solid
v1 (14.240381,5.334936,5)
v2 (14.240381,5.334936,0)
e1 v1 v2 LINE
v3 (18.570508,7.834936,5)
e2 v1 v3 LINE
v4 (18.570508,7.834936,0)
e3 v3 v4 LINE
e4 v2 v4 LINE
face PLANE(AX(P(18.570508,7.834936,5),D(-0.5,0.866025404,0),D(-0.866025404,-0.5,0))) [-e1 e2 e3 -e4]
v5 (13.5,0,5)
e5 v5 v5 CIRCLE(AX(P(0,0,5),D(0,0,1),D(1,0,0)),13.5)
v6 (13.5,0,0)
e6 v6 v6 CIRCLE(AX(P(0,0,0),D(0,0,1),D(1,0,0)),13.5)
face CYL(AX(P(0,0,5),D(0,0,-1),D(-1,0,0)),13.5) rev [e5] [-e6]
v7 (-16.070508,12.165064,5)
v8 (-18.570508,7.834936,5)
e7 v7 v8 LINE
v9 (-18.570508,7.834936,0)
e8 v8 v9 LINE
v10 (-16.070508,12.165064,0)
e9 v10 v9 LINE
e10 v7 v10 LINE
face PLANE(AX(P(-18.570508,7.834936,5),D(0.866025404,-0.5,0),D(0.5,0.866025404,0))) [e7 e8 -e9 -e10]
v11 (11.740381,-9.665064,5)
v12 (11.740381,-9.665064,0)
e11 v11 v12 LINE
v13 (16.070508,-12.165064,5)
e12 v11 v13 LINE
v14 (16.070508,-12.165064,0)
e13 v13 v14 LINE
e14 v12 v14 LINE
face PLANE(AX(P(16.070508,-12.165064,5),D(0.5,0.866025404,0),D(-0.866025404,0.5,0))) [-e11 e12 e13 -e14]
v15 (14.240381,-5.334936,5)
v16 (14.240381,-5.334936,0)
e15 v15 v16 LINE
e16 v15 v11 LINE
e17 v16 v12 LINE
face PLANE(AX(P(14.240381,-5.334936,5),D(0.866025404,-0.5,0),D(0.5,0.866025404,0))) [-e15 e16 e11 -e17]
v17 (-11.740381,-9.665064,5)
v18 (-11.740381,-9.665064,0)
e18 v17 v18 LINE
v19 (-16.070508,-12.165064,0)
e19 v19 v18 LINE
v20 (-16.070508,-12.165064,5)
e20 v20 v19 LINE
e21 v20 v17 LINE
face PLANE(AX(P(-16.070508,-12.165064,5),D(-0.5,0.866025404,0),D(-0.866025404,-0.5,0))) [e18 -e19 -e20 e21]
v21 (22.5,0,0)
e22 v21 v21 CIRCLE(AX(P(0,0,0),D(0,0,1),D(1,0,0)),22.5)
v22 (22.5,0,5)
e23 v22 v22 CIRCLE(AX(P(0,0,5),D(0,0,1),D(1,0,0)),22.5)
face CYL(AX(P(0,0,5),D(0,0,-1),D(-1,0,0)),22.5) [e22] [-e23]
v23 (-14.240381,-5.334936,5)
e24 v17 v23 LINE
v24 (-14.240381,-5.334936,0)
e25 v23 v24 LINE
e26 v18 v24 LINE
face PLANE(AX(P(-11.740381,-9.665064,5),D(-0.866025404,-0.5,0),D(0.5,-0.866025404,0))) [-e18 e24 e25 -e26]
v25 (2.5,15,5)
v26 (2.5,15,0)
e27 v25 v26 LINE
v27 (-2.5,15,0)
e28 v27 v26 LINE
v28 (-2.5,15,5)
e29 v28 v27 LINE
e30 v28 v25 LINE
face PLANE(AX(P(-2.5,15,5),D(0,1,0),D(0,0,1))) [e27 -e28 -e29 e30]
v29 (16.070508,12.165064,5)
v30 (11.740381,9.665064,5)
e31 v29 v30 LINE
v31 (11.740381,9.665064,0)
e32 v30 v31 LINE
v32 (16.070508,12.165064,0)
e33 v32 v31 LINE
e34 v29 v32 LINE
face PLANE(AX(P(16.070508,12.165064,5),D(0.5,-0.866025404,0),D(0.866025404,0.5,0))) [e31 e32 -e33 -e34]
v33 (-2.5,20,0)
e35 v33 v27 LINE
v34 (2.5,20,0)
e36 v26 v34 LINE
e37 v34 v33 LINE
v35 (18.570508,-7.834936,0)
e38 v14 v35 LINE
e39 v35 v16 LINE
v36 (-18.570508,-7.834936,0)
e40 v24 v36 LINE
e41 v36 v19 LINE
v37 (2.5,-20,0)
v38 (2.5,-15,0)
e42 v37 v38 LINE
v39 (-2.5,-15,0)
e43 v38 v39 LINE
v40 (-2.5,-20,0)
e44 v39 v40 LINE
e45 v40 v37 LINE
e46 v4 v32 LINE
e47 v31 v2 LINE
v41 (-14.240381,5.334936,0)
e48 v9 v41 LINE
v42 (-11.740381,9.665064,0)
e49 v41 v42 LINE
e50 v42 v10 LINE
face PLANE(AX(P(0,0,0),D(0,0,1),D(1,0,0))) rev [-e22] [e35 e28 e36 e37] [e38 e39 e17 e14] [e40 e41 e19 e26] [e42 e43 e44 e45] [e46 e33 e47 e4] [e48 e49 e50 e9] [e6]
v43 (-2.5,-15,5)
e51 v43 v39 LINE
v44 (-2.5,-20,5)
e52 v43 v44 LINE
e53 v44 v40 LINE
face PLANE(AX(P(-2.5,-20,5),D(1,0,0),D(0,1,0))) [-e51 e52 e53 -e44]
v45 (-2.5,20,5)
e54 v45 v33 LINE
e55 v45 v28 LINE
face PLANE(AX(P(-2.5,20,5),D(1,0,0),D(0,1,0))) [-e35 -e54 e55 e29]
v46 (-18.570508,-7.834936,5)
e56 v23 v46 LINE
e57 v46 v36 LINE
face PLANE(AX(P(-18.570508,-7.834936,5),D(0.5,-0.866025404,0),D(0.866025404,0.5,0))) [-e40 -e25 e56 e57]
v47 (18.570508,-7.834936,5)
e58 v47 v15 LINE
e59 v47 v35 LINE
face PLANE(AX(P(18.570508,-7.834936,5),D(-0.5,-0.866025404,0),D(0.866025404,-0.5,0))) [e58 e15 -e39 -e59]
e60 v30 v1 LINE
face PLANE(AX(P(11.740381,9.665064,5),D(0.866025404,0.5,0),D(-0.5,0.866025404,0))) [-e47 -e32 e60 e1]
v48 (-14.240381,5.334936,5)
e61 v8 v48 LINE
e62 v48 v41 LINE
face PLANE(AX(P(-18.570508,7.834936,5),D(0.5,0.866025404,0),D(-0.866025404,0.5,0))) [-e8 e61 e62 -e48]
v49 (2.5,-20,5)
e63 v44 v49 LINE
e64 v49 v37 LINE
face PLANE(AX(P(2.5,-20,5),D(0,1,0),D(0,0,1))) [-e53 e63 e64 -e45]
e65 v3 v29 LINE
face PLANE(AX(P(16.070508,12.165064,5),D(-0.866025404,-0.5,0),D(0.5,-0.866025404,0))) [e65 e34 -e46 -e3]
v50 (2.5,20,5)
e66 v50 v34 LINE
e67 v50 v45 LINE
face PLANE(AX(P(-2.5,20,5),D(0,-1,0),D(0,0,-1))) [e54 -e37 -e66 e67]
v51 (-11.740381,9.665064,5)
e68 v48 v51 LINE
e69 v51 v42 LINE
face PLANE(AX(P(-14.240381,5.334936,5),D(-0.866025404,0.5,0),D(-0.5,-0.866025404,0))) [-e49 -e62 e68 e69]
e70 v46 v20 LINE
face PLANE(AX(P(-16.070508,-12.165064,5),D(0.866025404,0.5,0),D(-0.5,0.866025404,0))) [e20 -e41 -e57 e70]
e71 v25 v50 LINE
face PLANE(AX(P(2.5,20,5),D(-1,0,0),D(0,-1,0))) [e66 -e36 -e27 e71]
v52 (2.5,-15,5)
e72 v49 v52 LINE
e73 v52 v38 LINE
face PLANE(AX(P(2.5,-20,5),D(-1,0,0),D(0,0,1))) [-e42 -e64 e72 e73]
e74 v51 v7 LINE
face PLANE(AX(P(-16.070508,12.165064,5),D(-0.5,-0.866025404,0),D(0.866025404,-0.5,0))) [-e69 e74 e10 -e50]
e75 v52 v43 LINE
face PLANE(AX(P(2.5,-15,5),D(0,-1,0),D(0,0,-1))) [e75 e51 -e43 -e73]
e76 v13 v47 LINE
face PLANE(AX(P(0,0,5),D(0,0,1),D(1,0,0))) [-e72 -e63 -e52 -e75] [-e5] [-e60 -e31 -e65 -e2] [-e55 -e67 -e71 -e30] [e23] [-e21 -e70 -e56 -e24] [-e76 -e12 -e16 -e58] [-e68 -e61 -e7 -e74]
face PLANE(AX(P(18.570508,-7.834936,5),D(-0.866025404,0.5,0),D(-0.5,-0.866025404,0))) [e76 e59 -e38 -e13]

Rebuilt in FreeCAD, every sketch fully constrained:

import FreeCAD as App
import Part
import Sketcher
from FreeCAD import Vector
Q = App.Units.Quantity


def add_polygon(sketch, points):
    """Adds a closed chain of lines whose ends are joined by coincident constraints."""
    first, n = sketch.GeometryCount, len(points)
    for a, b in zip(points, points[1:] + points[:1]):
        sketch.addGeometry(Part.LineSegment(App.Vector(*a, 0), App.Vector(*b, 0)), False)
    for i in range(n):
        sketch.addConstraint(Sketcher.Constraint("Coincident", first + i, 2, first + (i + 1) % n, 1))

doc = App.newDocument("Part")
body = doc.addObject("PartDesign::Body", "Body")

sketch1 = doc.addObject("Sketcher::SketchObject", "Sketch")
body.addObject(sketch1)
sketch1.AttachmentSupport = (doc.XY_Plane, [""])
sketch1.MapMode = "FlatFace"
sketch1.addGeometry(Part.Circle(Vector(0, 0, 0), Vector(0, 0, 1), 22.5), False)
add_polygon(sketch1, [(2.5, -20), (-2.5, -20), (-2.5, -15), (2.5, -15)])
add_polygon(sketch1, [(-16.1, -12.2), (-18.6, -7.8), (-14.2, -5.3), (-11.7, -9.7)])
add_polygon(sketch1, [(18.6, -7.8), (16.1, -12.2), (11.7, -9.7), (14.2, -5.3)])
add_polygon(sketch1, [(-18.6, 7.8), (-16.1, 12.2), (-11.7, 9.7), (-14.2, 5.3)])
add_polygon(sketch1, [(2.5, 15), (-2.5, 15), (-2.5, 20), (2.5, 20)])
sketch1.addGeometry(Part.Circle(Vector(0, 0, 0), Vector(0, 0, 1), 13.5), False)
add_polygon(sketch1, [(16.1, 12.2), (18.6, 7.8), (14.2, 5.3), (11.7, 9.7)])
sketch1.addConstraint([
    Sketcher.Constraint("Horizontal", 1),
    Sketcher.Constraint("Vertical", 2),
    Sketcher.Constraint("Horizontal", 3),
    Sketcher.Constraint("Vertical", 4),
    Sketcher.Constraint("Horizontal", 17),
    Sketcher.Constraint("Vertical", 18),
    Sketcher.Constraint("Horizontal", 19),
    Sketcher.Constraint("Vertical", 20),
    Sketcher.Constraint("Coincident", 0, 3, -1, 1),
    Sketcher.Constraint("Coincident", 21, 3, -1, 1),
    Sketcher.Constraint("Symmetric", 9, 2, 13, 2, -1, 1),
    Sketcher.Constraint("Symmetric", 10, 2, 14, 2, -1, 1),
    Sketcher.Constraint("Symmetric", 11, 2, 15, 2, -1, 1),
    Sketcher.Constraint("Symmetric", 12, 2, 16, 2, -1, 1),
    Sketcher.Constraint("Symmetric", 3, 2, 17, 2, -1, 1),
    Sketcher.Constraint("Symmetric", 1, 2, 19, 2, -1, 1),
    Sketcher.Constraint("Symmetric", 5, 2, 22, 2, -1, 1),
    Sketcher.Constraint("Symmetric", 6, 2, 23, 2, -1, 1),
    Sketcher.Constraint("Symmetric", 7, 2, 24, 2, -1, 1),
    Sketcher.Constraint("Symmetric", 8, 2, 25, 2, -1, 1),
    Sketcher.Constraint("Symmetric", 8, 2, 9, 2, -2),
    Sketcher.Constraint("Symmetric", 7, 2, 10, 2, -2),
    Sketcher.Constraint("Symmetric", 6, 2, 11, 2, -2),
    Sketcher.Constraint("Symmetric", 5, 2, 12, 2, -2),
    Sketcher.Constraint("Perpendicular", 5, 6),
    Sketcher.Constraint("Perpendicular", 6, 7),
    Sketcher.Constraint("Perpendicular", 7, 8),
    Sketcher.Constraint("Vertical", 2, 2, 17, 2),
    Sketcher.Constraint("Equal", 19, 2),
    Sketcher.Constraint("Equal", 5, 6),
    Sketcher.Constraint("Diameter", 0, 45.0),
    Sketcher.Constraint("Diameter", 21, 27.0),
    Sketcher.Constraint("DistanceX", 1, 2, 1, 1, 5.0),
    Sketcher.Constraint("Angle", 5, Q("120 deg")),
    Sketcher.Constraint("Distance", 5, 5.0),
    Sketcher.Constraint("DistanceY", 1, 2, -1, 1, 20.0),
    Sketcher.Constraint("DistanceY", 5, 2, 13, 2, 20.0),
    Sketcher.Constraint("DistanceX", 5, 2, -1, 1, 18.570508),
])
pad1 = doc.addObject("PartDesign::Pad", "Pad")
body.addObject(pad1)
pad1.Profile = sketch1
pad1.Length = 5

doc.recompute()
